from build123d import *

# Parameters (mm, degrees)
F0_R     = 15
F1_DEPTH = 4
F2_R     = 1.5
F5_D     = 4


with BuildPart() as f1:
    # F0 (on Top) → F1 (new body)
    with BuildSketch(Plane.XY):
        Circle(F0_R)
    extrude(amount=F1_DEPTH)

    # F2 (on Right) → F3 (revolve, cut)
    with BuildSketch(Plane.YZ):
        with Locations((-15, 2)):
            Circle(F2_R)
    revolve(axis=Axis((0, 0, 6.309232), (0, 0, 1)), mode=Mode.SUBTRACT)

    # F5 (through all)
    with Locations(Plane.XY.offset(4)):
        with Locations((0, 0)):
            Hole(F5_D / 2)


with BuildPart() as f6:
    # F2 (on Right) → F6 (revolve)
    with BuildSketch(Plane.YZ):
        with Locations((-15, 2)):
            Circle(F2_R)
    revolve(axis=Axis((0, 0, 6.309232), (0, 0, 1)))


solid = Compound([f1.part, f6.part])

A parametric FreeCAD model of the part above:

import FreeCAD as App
import Part
import Sketcher

V = App.Vector

doc = App.newDocument("Part")
body = doc.addObject("PartDesign::Body", "Body")

sketch1 = body.newObject("Sketcher::SketchObject", "Sketch")
sketch1.AttachmentSupport = (doc.getObject("XY_Plane"), [""])
sketch1.MapMode = "FlatFace"
sketch1.addGeometry(Part.Circle(V(0, 0, 0), V(0, 0, 1), 15), False)
sketch1.addConstraint([
    Sketcher.Constraint("Coincident", 0, 3, -1, 1),
    Sketcher.Constraint("Diameter", 0, 30.0),
])
pad1 = body.newObject("PartDesign::Pad", "Pad")
pad1.Profile = sketch1
pad1.Length = 4

sketch2 = body.newObject("Sketcher::SketchObject", "Sketch001")
sketch2.AttachmentSupport = (doc.getObject("YZ_Plane"), [""])
sketch2.MapMode = "FlatFace"
sketch2.addGeometry(Part.Circle(V(-15, 2, 0), V(0, 0, 1), 1.5), False)
sketch2.addConstraint([
    Sketcher.Constraint("Diameter", 0, 3.0),
    Sketcher.Constraint("DistanceX", 0, 3, -1, 1, 15.0),
    Sketcher.Constraint("DistanceY", -1, 1, 0, 3, 2.0),
])
groove = body.newObject("PartDesign::Groove", "Groove")
groove.Profile = sketch2
groove.ReferenceAxis = (sketch2, ["V_Axis"])
groove.Angle = 360

sketch3 = body.newObject("Sketcher::SketchObject", "Sketch002")
sketch3.AttachmentSupport = (doc.getObject("XY_Plane"), [""])
sketch3.MapMode = "FlatFace"
sketch3.AttachmentOffset = App.Placement(V(0, 0, 4), App.Rotation())
sketch3.addGeometry(Part.Circle(V(0, 0, 0), V(0, 0, 1), 2), False)
sketch3.addConstraint([
    Sketcher.Constraint("Coincident", 0, 3, -1, 1),
    Sketcher.Constraint("Diameter", 0, 4.0),
])
doc.recompute()
hole = body.newObject("PartDesign::Hole", "Hole")
hole.Profile = sketch3
hole.ThreadType = "None"
hole.Diameter = 4
hole.DepthType = "ThroughAll"
body2 = doc.addObject("PartDesign::Body", "Body001")

sketch4 = body2.newObject("Sketcher::SketchObject", "Sketch003")
sketch4.AttachmentSupport = (doc.getObject("YZ_Plane001"), [""])
sketch4.MapMode = "FlatFace"
sketch4.addGeometry(Part.Circle(V(-15, 2, 0), V(0, 0, 1), 1.5), False)
sketch4.addConstraint([
    Sketcher.Constraint("Diameter", 0, 3.0),
    Sketcher.Constraint("DistanceX", 0, 3, -1, 1, 15.0),
    Sketcher.Constraint("DistanceY", -1, 1, 0, 3, 2.0),
])
revolution = body2.newObject("PartDesign::Revolution", "Revolution")
revolution.Profile = sketch4
revolution.ReferenceAxis = (sketch4, ["V_Axis"])
revolution.Angle = 360

doc.recompute()
